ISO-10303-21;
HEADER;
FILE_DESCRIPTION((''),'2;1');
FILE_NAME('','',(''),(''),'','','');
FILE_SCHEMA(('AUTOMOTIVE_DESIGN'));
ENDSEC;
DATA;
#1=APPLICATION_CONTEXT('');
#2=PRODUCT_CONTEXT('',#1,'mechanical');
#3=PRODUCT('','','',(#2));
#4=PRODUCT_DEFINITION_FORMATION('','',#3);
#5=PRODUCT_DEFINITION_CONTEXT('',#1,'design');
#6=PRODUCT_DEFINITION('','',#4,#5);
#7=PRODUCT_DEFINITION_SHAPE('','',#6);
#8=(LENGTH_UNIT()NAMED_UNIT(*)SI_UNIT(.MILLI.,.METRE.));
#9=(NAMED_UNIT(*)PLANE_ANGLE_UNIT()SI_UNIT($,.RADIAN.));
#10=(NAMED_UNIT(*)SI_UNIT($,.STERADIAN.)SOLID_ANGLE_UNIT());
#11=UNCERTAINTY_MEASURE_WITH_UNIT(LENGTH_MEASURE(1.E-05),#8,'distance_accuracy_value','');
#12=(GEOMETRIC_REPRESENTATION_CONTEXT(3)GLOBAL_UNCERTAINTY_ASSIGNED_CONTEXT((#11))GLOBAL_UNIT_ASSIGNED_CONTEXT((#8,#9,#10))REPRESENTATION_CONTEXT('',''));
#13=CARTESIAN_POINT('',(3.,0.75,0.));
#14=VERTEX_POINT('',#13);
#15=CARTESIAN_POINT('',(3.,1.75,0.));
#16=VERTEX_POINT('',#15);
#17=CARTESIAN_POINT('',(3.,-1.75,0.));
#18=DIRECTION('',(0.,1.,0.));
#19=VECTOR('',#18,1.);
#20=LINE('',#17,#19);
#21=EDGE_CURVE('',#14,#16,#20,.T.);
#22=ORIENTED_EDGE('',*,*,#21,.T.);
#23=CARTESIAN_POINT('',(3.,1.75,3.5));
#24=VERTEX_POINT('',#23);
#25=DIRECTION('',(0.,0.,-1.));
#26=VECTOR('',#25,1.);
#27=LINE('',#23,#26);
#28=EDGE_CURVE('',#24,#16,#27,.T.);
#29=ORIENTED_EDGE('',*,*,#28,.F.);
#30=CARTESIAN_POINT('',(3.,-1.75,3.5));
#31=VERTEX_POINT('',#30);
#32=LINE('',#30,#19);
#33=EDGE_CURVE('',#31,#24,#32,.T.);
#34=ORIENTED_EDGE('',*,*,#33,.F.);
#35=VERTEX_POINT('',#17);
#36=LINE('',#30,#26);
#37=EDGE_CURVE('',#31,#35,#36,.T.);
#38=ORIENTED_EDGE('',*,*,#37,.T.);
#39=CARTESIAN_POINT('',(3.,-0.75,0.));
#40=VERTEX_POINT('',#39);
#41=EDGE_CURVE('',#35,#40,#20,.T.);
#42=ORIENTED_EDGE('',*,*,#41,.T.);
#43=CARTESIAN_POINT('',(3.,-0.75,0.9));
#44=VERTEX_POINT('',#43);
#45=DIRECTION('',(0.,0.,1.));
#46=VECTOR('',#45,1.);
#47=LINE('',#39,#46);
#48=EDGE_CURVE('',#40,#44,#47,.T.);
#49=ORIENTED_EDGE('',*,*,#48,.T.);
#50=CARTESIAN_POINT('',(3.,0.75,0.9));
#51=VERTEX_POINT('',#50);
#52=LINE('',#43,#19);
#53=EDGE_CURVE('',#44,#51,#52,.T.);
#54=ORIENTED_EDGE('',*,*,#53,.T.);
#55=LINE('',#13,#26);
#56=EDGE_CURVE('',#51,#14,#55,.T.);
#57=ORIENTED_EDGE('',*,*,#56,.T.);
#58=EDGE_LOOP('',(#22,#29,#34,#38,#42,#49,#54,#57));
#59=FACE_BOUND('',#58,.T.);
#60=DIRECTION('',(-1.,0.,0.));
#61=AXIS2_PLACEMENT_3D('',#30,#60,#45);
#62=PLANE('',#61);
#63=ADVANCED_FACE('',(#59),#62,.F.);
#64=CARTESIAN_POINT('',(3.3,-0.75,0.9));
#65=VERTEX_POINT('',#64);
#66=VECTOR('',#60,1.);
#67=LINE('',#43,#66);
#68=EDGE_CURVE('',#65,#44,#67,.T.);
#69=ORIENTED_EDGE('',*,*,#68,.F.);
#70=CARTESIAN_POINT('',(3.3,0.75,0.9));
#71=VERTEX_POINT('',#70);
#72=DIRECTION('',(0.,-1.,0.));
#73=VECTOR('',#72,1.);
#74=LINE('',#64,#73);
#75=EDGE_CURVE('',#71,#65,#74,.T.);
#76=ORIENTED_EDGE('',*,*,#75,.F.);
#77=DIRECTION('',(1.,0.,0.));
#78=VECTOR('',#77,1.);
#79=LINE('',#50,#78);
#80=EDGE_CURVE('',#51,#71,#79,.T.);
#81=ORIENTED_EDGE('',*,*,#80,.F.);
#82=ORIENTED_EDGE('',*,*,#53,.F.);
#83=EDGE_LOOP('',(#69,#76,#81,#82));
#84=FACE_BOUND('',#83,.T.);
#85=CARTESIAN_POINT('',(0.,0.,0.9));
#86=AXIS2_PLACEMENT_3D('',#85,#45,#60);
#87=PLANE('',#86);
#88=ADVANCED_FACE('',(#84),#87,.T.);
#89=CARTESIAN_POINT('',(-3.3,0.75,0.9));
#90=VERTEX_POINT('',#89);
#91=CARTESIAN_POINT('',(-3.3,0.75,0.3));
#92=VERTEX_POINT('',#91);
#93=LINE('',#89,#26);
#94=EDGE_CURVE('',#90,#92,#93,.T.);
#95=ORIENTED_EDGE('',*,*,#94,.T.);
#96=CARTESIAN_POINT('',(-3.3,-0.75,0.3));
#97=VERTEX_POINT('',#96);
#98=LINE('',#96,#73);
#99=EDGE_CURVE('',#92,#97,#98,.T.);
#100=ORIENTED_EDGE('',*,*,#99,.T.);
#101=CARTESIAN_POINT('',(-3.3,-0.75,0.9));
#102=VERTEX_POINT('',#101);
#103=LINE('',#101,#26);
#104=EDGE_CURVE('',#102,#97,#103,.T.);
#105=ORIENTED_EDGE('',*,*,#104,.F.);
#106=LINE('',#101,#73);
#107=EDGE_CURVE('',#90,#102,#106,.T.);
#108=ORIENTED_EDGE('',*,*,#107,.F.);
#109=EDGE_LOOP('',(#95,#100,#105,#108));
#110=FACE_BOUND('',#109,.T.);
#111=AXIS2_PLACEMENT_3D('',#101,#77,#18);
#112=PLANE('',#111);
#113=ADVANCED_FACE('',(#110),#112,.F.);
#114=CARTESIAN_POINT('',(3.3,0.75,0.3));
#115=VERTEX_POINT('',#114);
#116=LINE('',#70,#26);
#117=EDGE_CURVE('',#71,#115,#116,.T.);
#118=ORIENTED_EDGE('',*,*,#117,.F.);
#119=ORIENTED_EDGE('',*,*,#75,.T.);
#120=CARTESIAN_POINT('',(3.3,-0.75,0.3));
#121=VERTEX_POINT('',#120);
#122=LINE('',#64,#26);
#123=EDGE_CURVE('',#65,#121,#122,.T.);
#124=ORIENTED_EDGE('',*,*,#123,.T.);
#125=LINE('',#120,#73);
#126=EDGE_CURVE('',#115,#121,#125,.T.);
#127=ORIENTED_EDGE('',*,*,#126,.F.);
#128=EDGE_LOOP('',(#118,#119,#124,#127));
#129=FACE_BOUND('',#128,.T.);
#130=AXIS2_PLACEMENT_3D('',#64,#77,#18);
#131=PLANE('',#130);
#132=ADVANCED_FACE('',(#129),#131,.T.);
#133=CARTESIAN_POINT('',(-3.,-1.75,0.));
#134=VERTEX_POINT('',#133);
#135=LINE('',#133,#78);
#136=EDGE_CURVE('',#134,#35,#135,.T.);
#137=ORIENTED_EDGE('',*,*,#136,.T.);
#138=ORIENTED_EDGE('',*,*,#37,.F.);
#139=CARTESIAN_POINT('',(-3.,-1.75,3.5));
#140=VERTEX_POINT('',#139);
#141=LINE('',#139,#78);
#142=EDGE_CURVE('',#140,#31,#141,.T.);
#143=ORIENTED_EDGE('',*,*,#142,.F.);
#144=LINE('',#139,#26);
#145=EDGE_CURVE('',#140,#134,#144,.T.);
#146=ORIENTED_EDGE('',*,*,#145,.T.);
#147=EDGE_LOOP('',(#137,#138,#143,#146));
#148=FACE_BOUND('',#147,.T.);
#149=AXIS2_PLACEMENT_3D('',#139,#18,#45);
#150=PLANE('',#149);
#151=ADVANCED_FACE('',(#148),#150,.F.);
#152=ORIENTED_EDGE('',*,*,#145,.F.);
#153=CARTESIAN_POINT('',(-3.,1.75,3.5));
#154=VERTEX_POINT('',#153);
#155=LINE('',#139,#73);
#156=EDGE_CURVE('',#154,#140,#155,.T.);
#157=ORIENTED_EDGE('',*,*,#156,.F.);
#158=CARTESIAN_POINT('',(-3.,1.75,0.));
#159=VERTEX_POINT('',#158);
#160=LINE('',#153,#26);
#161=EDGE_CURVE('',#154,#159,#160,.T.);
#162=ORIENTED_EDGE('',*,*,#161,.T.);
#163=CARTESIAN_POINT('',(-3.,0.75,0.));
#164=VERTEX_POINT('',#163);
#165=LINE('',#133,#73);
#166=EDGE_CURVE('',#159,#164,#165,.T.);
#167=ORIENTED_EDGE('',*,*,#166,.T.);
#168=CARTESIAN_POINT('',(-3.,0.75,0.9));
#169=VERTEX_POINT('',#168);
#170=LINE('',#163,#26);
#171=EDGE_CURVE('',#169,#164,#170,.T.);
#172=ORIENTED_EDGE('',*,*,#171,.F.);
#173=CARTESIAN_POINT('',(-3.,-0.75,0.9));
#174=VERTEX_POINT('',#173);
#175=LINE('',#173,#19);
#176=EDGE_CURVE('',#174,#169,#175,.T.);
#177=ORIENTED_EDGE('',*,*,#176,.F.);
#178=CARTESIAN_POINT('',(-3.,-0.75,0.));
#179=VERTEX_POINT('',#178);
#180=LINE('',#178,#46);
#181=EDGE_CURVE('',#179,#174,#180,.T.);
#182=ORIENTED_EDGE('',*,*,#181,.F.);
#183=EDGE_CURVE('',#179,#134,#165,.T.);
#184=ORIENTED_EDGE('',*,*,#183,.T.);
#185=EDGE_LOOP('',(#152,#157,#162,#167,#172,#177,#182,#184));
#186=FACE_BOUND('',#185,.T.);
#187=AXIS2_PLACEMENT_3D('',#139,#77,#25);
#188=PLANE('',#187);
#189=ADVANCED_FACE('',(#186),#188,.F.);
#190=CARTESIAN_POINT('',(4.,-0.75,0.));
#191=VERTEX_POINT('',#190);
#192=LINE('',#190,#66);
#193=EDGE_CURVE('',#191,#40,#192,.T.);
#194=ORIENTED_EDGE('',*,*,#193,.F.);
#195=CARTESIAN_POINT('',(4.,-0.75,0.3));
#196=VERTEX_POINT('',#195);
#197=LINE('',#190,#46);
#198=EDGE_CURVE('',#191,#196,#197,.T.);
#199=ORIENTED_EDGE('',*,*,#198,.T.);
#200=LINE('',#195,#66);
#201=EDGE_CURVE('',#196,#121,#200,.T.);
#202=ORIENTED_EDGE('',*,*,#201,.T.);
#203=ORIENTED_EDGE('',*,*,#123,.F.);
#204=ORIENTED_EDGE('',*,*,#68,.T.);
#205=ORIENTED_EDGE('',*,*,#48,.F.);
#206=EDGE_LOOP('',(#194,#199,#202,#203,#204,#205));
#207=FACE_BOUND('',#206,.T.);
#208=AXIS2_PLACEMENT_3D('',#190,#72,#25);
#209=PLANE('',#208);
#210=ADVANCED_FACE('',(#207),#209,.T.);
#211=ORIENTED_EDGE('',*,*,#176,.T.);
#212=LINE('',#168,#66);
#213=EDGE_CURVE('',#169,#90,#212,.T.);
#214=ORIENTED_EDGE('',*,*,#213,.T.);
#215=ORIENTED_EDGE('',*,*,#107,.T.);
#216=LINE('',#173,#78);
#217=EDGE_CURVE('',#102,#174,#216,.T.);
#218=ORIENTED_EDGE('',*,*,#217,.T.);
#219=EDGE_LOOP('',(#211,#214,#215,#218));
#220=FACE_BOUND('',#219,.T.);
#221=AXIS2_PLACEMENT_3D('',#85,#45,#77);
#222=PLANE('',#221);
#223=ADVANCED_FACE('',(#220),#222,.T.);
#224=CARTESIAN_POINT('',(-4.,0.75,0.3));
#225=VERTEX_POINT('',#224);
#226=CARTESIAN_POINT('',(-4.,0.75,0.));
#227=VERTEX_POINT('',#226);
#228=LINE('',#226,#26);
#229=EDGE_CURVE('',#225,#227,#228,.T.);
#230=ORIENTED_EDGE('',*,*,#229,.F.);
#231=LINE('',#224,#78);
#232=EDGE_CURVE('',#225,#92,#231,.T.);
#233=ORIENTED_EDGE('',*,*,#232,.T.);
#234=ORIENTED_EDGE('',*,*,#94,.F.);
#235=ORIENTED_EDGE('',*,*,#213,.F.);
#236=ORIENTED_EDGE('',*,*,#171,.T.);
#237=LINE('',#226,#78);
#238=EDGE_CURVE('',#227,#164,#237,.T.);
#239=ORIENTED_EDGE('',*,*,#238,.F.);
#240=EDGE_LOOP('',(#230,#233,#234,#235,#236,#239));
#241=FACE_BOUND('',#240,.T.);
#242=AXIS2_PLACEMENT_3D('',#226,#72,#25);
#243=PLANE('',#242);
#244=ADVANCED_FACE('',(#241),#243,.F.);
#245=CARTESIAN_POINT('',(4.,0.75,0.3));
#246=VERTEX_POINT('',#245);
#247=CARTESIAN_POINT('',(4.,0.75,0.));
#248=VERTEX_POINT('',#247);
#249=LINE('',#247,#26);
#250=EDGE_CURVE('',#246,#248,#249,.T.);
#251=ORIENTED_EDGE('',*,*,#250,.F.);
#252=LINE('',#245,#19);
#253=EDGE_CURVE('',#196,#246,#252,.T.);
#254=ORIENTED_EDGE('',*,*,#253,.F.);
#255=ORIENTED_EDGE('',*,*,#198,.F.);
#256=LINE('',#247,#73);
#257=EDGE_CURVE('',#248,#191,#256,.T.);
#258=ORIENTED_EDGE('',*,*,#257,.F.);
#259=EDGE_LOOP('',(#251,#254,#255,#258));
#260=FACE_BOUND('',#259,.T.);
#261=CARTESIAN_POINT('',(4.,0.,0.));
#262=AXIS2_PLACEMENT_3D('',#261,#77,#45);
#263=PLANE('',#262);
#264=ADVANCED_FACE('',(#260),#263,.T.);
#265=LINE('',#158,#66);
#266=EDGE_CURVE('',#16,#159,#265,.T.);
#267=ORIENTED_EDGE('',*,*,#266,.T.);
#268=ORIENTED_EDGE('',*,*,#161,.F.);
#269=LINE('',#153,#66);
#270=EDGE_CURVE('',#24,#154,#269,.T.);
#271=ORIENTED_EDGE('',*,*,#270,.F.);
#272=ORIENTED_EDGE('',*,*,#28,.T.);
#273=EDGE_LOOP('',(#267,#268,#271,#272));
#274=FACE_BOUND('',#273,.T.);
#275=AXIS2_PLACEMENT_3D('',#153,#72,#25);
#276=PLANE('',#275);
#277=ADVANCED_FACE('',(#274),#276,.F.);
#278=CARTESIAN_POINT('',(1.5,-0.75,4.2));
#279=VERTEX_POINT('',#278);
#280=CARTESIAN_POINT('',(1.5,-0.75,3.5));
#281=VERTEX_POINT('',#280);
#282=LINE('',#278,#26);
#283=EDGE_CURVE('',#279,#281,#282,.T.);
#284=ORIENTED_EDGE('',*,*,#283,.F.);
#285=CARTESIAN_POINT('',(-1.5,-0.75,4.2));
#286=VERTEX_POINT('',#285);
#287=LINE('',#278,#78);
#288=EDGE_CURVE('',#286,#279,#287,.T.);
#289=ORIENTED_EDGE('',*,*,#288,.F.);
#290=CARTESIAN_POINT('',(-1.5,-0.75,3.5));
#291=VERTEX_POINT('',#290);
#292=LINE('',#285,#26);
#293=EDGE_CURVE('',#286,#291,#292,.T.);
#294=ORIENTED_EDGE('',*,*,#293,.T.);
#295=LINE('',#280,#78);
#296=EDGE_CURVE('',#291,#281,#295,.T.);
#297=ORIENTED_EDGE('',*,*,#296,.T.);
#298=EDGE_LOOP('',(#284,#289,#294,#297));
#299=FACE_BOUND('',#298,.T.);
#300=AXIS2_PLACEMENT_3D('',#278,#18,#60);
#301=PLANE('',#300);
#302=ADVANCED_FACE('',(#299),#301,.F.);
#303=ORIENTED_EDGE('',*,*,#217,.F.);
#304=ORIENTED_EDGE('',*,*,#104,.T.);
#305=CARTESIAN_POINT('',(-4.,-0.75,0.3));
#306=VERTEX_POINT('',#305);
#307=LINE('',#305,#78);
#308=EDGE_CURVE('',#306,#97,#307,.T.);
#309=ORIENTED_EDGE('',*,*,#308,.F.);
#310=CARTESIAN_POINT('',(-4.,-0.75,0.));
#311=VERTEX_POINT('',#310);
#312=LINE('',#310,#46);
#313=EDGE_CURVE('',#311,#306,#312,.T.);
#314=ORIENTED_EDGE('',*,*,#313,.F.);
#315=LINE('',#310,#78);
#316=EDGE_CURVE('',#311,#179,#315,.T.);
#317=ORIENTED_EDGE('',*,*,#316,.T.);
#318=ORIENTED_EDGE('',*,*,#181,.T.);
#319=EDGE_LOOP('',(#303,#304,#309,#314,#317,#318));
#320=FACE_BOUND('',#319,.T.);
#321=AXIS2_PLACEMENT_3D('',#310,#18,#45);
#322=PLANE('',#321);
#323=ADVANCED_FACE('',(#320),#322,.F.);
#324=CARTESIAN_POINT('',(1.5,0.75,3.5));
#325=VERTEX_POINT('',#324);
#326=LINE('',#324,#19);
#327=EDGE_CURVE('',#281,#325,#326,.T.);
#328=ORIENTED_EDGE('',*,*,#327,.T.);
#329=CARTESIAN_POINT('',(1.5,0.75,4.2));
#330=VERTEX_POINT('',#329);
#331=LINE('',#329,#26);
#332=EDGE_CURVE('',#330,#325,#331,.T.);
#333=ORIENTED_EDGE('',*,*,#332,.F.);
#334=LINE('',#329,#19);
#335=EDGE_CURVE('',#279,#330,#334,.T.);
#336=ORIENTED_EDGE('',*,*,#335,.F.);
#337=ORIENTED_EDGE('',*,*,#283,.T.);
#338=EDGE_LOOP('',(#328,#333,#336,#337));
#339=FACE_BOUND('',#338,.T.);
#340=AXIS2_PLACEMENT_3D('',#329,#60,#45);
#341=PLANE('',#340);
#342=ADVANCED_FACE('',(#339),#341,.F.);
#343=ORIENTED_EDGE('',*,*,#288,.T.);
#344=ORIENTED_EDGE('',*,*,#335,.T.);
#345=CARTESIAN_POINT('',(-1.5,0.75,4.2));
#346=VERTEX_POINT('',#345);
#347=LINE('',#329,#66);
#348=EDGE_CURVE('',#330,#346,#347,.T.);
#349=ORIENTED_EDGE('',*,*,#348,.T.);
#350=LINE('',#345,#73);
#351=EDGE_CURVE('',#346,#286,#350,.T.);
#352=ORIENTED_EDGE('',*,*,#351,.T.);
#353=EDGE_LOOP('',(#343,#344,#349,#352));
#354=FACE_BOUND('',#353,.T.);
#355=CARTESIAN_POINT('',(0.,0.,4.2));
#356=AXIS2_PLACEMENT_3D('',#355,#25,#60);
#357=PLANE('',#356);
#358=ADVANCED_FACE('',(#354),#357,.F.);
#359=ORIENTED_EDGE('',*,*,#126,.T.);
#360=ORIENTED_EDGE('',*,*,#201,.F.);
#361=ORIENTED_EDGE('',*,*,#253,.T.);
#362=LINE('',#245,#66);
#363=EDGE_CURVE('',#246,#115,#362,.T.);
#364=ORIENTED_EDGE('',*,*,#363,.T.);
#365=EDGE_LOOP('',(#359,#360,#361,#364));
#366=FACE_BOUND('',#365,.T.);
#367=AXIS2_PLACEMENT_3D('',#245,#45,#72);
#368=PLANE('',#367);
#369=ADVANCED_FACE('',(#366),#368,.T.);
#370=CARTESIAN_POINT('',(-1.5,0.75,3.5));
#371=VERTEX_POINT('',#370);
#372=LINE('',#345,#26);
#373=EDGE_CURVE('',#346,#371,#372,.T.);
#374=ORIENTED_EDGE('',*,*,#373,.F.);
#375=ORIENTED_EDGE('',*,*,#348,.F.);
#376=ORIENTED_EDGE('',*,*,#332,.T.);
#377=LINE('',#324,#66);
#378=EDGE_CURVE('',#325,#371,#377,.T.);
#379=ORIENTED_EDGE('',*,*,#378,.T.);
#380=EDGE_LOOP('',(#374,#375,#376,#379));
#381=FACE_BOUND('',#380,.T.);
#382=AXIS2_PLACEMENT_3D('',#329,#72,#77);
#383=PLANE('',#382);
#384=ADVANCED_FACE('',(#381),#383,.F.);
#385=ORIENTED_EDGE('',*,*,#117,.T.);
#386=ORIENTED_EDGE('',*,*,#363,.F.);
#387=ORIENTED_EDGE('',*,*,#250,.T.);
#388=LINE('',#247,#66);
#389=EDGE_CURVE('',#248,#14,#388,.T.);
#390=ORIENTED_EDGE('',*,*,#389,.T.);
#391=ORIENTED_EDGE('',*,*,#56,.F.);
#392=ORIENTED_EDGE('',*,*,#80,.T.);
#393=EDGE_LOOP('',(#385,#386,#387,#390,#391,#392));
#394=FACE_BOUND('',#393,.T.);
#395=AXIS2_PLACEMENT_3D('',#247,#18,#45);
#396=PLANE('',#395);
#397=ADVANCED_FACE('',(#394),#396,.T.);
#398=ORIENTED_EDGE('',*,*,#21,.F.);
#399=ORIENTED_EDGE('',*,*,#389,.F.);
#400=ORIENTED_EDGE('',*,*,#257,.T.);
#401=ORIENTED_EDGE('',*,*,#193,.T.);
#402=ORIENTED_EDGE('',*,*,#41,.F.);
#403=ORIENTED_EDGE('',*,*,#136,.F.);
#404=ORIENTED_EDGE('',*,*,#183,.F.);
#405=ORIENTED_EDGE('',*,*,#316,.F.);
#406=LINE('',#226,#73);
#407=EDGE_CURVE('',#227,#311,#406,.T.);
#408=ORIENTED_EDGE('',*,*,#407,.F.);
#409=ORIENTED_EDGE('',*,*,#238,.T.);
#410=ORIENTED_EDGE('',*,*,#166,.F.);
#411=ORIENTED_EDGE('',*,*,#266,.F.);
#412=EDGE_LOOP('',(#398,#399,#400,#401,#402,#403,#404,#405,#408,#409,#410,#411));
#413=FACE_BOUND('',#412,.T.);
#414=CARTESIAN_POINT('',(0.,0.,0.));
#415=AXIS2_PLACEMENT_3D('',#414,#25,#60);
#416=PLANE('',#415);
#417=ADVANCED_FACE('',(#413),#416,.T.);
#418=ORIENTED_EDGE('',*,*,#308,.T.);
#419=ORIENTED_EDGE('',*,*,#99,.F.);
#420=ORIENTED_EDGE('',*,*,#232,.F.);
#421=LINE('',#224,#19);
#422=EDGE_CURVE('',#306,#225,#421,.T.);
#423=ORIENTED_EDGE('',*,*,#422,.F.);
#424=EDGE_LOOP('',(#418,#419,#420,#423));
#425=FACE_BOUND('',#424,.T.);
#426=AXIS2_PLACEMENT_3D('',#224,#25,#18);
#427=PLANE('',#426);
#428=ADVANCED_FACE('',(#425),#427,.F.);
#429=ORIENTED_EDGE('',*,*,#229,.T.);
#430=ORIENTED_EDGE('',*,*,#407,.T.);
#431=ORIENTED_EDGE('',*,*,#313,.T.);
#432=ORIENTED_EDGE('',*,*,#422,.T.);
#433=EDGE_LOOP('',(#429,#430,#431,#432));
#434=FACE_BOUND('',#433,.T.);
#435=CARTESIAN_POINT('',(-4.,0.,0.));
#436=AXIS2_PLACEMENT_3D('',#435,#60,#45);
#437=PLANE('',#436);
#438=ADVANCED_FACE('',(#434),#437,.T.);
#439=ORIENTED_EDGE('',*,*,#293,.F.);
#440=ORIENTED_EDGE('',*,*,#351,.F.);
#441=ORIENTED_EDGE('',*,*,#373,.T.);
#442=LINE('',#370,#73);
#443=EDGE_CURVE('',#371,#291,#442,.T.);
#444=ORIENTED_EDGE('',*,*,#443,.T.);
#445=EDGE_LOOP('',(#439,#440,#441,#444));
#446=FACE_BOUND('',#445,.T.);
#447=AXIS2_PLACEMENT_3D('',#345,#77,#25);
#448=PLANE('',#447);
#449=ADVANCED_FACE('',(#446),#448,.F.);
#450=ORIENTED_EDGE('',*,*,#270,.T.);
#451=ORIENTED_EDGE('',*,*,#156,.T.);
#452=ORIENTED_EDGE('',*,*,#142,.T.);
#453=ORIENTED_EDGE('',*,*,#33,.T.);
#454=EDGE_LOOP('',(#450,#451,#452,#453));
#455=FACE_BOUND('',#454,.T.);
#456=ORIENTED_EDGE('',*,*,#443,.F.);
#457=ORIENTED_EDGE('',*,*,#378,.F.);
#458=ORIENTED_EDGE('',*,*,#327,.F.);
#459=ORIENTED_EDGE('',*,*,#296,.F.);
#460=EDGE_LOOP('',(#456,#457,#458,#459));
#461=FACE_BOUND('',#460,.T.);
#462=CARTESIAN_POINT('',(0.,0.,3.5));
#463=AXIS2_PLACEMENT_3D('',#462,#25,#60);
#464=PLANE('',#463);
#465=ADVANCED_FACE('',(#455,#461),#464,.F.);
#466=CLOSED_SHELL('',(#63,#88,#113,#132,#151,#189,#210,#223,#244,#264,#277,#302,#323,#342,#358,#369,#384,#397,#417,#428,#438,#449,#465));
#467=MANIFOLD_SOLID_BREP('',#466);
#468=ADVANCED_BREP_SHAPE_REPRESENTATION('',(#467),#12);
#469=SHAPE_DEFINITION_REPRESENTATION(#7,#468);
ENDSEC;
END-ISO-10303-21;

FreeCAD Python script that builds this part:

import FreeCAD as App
import Part
import Sketcher


def add_polygon(sketch, points):
    """Adds a closed chain of lines whose ends are joined by coincident constraints."""
    first, n = sketch.GeometryCount, len(points)
    for a, b in zip(points, points[1:] + points[:1]):
        sketch.addGeometry(Part.LineSegment(App.Vector(*a, 0), App.Vector(*b, 0)), False)
    for i in range(n):
        sketch.addConstraint(Sketcher.Constraint("Coincident", first + i, 2, first + (i + 1) % n, 1))

doc = App.newDocument("Part")
params = doc.addObject("Spreadsheet::Sheet", "Params")
for row, (alias, value) in enumerate([
    ("sketch1_width", "6 mm"),
    ("sketch1_height", "3.5 mm"),
    ("pad1_length", "3.5 mm"),
    ("sketch2_width", "3 mm"),
    ("sketch2_height", "1.5 mm"),
    ("pad2_length", "0.7 mm"),
    ("sketch3_width", "1.5 mm"),
    ("sketch3_height", "0.3 mm"),
    ("pad3_length", "1 mm"),
    ("sketch4_width", "0.3 mm"),
    ("sketch4_height", "1.5 mm"),
    ("pad4_length", "0.6 mm"),
], start=1):
    params.set(f"A{row}", alias)
    params.set(f"B{row}", "=" + value)
    params.setAlias(f"B{row}", alias)

body = doc.addObject("PartDesign::Body", "Body")

# Sketch on XY plane
sketch1 = doc.addObject("Sketcher::SketchObject", "Sketch")
body.addObject(sketch1)
sketch1.AttachmentSupport = (doc.XY_Plane, [""])
sketch1.MapMode = "FlatFace"
add_polygon(sketch1, [(-3, 1.75), (-3, -1.75), (3, -1.75), (3, 1.75)])  # lines 0-3
sketch1.addConstraint([
    Sketcher.Constraint("Vertical", 0),
    Sketcher.Constraint("Horizontal", 1),
    Sketcher.Constraint("Vertical", 2),
    Sketcher.Constraint("Horizontal", 3),
    Sketcher.Constraint("Symmetric", 0, 2, 2, 2, -1, 1),
    Sketcher.Constraint("DistanceX", 1, 1, 1, 2, 6.0),
    Sketcher.Constraint("DistanceY", 0, 2, 0, 1, 3.5),
])
sketch1.setExpression("Constraints[9]", "Params.sketch1_width")
sketch1.setExpression("Constraints[10]", "Params.sketch1_height")
pad1 = doc.addObject("PartDesign::Pad", "Pad")
body.addObject(pad1)
pad1.Profile = sketch1
pad1.setExpression("Length", "Params.pad1_length")

# Sketch on XY plane
sketch2 = doc.addObject("Sketcher::SketchObject", "Sketch001")
body.addObject(sketch2)
sketch2.AttachmentSupport = (doc.XY_Plane, [""])
sketch2.MapMode = "FlatFace"
sketch2.AttachmentOffset = App.Placement(App.Vector(0, 0, 3.5), App.Rotation())
add_polygon(sketch2, [(-1.5, 0.75), (-1.5, -0.75), (1.5, -0.75), (1.5, 0.75)])  # lines 0-3
sketch2.addConstraint([
    Sketcher.Constraint("Vertical", 0),
    Sketcher.Constraint("Horizontal", 1),
    Sketcher.Constraint("Vertical", 2),
    Sketcher.Constraint("Horizontal", 3),
    Sketcher.Constraint("Symmetric", 0, 2, 2, 2, -1, 1),
    Sketcher.Constraint("DistanceX", 1, 1, 1, 2, 3.0),
    Sketcher.Constraint("DistanceY", 0, 2, 0, 1, 1.5),
])
sketch2.setExpression("Constraints[9]", "Params.sketch2_width")
sketch2.setExpression("Constraints[10]", "Params.sketch2_height")
pad2 = doc.addObject("PartDesign::Pad", "Pad001")
body.addObject(pad2)
pad2.Profile = sketch2
pad2.setExpression("Length", "Params.pad2_length")

# Sketch on YZ plane
sketch3 = doc.addObject("Sketcher::SketchObject", "Sketch002")
body.addObject(sketch3)
sketch3.AttachmentSupport = (doc.YZ_Plane, [""])
sketch3.MapMode = "FlatFace"
sketch3.AttachmentOffset = App.Placement(App.Vector(0, 0, -3), App.Rotation())
add_polygon(sketch3, [(0.75, 0), (-0.75, 0), (-0.75, 0.3), (0.75, 0.3)])  # lines 0-3
sketch3.addConstraint([
    Sketcher.Constraint("Horizontal", 0),
    Sketcher.Constraint("Vertical", 1),
    Sketcher.Constraint("Horizontal", 2),
    Sketcher.Constraint("Vertical", 3),
    Sketcher.Constraint("Symmetric", 0, 2, 3, 2, -1, 1),
    Sketcher.Constraint("DistanceX", 0, 2, 0, 1, 1.5),
    Sketcher.Constraint("DistanceY", 1, 1, 1, 2, 0.3),
])
sketch3.setExpression("Constraints[9]", "Params.sketch3_width")
sketch3.setExpression("Constraints[10]", "Params.sketch3_height")
pad3 = doc.addObject("PartDesign::Pad", "Pad002")
body.addObject(pad3)
pad3.Profile = sketch3
pad3.setExpression("Length", "Params.pad3_length")
pad3.Reversed = True

# Sketch on XY plane
sketch4 = doc.addObject("Sketcher::SketchObject", "Sketch003")
body.addObject(sketch4)
sketch4.AttachmentSupport = (doc.XY_Plane, [""])
sketch4.MapMode = "FlatFace"
sketch4.AttachmentOffset = App.Placement(App.Vector(0, 0, 0.3), App.Rotation())
add_polygon(sketch4, [(-3.3, 0.75), (-3.3, -0.75), (-3, -0.75), (-3, 0.75)])  # lines 0-3
sketch4.addConstraint([
    Sketcher.Constraint("Vertical", 0),
    Sketcher.Constraint("Horizontal", 1),
    Sketcher.Constraint("Vertical", 2),
    Sketcher.Constraint("Horizontal", 3),
    Sketcher.Constraint("DistanceX", 1, 1, 1, 2, 0.3),
    Sketcher.Constraint("DistanceY", 0, 2, 0, 1, 1.5),
    Sketcher.Constraint("DistanceX", 1, 2, -1, 1, 3.0),
    Sketcher.Constraint("DistanceY", 0, 2, -1, 1, 0.75),
])
sketch4.setExpression("Constraints[8]", "Params.sketch4_width")
sketch4.setExpression("Constraints[9]", "Params.sketch4_height")
pad4 = doc.addObject("PartDesign::Pad", "Pad003")
body.addObject(pad4)
pad4.Profile = sketch4
pad4.setExpression("Length", "Params.pad4_length")
doc.recompute()

mirrored = doc.addObject("PartDesign::Mirrored", "Mirrored")
body.addObject(mirrored)
mirrored.Originals = [pad3, pad4]
mirrored.MirrorPlane = (doc.YZ_Plane, [""])
body.Tip = mirrored

doc.recompute()
